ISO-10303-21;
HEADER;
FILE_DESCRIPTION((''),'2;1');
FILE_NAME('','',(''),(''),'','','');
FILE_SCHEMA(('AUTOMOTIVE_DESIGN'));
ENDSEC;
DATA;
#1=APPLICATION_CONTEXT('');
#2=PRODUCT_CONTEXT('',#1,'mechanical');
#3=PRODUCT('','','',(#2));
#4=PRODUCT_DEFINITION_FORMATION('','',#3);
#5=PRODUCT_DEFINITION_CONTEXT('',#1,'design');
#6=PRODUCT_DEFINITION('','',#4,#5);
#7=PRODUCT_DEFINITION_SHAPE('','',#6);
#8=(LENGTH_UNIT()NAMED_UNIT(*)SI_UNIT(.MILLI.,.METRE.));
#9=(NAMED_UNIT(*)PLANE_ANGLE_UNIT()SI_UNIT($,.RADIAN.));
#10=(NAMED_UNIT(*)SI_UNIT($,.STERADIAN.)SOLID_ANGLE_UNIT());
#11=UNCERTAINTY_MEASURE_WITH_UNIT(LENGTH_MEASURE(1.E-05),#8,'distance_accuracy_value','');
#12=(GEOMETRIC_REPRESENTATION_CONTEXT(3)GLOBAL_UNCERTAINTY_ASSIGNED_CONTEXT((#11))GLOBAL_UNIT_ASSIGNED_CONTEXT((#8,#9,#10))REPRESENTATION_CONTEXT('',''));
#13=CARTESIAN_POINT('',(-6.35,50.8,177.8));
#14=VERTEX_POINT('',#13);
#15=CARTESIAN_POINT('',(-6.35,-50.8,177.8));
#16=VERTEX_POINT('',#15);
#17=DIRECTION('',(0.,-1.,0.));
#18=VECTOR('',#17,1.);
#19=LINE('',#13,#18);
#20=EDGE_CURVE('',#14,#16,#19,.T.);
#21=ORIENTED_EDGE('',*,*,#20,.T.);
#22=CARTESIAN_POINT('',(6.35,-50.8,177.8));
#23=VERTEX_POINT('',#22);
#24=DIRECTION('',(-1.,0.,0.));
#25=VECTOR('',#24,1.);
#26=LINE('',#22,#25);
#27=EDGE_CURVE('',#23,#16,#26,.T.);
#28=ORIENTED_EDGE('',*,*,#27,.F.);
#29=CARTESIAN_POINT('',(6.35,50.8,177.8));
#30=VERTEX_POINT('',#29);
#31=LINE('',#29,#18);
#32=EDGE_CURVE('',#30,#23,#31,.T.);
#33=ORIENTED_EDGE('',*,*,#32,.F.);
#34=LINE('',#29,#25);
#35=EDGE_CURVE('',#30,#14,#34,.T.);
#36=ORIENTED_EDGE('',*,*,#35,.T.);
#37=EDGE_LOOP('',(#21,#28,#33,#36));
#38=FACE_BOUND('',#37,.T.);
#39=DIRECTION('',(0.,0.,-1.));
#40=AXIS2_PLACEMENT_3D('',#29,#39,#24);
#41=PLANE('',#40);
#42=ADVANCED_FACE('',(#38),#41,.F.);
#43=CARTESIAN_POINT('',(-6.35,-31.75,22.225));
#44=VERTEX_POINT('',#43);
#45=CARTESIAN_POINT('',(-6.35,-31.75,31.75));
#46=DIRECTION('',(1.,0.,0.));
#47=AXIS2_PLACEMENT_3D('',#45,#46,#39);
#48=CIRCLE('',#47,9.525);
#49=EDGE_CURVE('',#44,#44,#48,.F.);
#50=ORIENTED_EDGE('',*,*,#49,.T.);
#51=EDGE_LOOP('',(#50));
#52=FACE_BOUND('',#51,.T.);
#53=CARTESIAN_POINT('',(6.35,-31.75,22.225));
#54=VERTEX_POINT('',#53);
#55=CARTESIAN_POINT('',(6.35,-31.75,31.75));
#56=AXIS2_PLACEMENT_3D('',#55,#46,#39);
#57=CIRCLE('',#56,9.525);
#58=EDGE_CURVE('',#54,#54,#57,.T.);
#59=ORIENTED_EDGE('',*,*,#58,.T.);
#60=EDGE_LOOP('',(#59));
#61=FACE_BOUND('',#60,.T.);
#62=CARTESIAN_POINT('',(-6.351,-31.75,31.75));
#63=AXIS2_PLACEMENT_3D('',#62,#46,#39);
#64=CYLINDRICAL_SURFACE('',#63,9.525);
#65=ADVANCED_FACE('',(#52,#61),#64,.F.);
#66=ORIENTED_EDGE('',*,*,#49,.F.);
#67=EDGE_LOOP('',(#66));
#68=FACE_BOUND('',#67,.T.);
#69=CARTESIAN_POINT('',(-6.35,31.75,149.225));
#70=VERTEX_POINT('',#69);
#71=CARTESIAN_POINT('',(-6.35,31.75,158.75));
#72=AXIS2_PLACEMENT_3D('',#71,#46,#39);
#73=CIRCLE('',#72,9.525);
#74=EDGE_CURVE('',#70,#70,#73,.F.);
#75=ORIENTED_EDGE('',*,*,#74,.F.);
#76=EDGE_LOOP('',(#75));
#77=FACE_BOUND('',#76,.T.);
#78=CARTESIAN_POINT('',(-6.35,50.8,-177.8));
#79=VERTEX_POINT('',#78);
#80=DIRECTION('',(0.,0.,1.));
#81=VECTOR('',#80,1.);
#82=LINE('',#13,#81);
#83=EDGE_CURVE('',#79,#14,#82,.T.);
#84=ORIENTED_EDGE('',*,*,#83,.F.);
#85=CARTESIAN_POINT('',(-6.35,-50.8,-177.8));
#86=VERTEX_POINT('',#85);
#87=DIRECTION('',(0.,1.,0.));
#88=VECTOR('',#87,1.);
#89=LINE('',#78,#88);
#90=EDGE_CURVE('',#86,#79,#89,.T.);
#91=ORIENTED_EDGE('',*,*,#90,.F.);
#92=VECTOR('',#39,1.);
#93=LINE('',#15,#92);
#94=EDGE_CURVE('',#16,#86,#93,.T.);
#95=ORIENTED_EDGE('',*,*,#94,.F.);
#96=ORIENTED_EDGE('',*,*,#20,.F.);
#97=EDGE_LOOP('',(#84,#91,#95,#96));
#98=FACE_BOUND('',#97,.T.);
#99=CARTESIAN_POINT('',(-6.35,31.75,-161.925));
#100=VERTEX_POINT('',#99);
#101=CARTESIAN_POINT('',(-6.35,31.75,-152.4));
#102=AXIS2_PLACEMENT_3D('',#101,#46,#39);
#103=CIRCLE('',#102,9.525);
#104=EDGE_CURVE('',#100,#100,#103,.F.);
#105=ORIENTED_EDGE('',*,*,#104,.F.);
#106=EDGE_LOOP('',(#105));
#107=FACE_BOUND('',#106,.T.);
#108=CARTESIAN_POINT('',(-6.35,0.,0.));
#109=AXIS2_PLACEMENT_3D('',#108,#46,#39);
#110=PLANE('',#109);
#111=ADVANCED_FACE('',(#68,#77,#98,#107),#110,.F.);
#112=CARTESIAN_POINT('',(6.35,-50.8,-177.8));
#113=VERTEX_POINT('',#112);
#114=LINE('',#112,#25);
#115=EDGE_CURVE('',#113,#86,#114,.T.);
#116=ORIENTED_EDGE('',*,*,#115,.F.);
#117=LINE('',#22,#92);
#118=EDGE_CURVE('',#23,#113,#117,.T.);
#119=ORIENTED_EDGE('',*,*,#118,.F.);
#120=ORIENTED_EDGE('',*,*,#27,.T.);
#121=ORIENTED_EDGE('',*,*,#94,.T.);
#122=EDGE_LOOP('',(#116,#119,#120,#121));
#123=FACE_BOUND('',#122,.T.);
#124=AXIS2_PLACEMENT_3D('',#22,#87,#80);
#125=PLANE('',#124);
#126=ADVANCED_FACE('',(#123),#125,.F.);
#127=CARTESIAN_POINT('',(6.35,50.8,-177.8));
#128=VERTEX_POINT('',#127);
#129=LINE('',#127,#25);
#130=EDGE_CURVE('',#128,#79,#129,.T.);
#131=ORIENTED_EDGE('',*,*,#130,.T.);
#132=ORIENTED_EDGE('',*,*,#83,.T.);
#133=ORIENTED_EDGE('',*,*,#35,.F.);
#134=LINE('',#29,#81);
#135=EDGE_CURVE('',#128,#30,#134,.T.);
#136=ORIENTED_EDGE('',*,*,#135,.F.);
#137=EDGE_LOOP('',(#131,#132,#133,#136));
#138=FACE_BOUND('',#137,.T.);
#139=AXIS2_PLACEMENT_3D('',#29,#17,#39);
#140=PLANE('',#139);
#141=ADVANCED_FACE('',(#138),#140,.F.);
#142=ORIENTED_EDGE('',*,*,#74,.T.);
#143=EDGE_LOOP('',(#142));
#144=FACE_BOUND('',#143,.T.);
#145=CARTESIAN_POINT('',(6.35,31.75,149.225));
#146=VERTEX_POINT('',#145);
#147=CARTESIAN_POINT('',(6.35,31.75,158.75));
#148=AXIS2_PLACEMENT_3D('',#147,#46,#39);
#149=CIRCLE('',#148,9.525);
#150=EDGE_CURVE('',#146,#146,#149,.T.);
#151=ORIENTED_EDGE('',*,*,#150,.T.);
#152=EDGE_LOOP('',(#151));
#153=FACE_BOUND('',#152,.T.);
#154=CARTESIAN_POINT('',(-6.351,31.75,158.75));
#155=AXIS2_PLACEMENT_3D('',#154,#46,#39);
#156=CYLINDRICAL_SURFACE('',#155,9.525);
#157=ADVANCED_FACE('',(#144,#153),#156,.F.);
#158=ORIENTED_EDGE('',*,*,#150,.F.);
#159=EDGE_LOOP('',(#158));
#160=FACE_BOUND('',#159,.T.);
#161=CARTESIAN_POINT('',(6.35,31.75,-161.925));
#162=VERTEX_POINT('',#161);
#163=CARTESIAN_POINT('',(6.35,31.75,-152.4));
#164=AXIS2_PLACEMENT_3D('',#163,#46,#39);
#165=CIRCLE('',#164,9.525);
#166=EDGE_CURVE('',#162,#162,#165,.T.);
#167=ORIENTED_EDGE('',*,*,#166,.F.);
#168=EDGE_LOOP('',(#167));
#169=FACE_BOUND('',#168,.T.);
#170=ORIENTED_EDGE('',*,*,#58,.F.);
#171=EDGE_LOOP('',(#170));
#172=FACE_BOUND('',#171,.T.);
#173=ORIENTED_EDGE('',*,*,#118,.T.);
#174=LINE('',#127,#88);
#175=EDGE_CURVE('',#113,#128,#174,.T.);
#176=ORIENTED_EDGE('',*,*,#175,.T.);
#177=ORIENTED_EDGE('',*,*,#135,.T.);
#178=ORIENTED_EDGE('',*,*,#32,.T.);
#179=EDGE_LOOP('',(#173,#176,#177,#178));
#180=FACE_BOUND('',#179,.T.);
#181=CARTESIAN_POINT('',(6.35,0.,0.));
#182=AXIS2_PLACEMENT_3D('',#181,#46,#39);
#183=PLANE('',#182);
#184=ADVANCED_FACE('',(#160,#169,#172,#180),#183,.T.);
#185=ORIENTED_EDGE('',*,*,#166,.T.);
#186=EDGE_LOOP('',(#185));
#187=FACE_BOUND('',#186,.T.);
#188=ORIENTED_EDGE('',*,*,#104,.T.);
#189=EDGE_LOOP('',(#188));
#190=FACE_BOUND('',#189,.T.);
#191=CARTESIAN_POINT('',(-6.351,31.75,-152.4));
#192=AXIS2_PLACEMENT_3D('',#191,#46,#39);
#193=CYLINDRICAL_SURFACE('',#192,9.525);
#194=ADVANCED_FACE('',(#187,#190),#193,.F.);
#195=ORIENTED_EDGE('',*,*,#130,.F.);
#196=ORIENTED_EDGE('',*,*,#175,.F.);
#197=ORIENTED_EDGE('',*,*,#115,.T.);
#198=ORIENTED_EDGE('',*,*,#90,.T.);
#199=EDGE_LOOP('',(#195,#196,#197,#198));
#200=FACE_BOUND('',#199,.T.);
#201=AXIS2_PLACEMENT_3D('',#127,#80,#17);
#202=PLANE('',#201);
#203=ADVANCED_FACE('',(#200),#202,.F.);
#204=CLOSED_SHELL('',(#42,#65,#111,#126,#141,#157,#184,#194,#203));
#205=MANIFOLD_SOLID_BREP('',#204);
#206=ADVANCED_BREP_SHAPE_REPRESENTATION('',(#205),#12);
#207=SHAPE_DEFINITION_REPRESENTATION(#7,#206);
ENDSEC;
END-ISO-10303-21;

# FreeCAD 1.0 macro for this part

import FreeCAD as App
import Part
import Sketcher

V = App.Vector
Q = App.Units.Quantity


def add_polygon(sketch, points):
    """Adds a closed chain of lines whose ends are joined by coincident constraints."""
    first, n = sketch.GeometryCount, len(points)
    for a, b in zip(points, points[1:] + points[:1]):
        sketch.addGeometry(Part.LineSegment(App.Vector(*a, 0), App.Vector(*b, 0)), False)
    for i in range(n):
        sketch.addConstraint(Sketcher.Constraint("Coincident", first + i, 2, first + (i + 1) % n, 1))

doc = App.newDocument("Part")
body = doc.addObject("PartDesign::Body", "Body")

# Sketch on YZ plane
sketch1 = body.newObject("Sketcher::SketchObject", "Sketch")
sketch1.AttachmentSupport = (doc.getObject("YZ_Plane"), [""])
sketch1.MapMode = "FlatFace"
add_polygon(sketch1, [(50.8, 177.8), (-50.8, 177.8), (-50.8, -177.8), (50.8, -177.8)])  # lines 0-3
sketch1.addConstraint([
    Sketcher.Constraint("Horizontal", 0),
    Sketcher.Constraint("Vertical", 1),
    Sketcher.Constraint("Horizontal", 2),
    Sketcher.Constraint("Vertical", 3),
    Sketcher.Constraint("Symmetric", 0, 2, 2, 2, -1, 1),
    Sketcher.Constraint("DistanceX", 0, 2, 0, 1, Q("4 in")),
    Sketcher.Constraint("DistanceY", 1, 2, 1, 1, Q("14 in")),
])
pad1 = body.newObject("PartDesign::Pad", "Pad")
pad1.Profile = sketch1
pad1.Length = Q("0.5 in")
pad1.Midplane = True

# Sketch on YZ plane
sketch2 = body.newObject("Sketcher::SketchObject", "Sketch001")
sketch2.AttachmentSupport = (doc.getObject("YZ_Plane"), [""])
sketch2.MapMode = "FlatFace"
sketch2.AttachmentOffset = App.Placement(V(0, 0, 0.25 * 25.4), App.Rotation())
sketch2.addGeometry(Part.Circle(V(31.75, 158.75, 0), V(0, 0, 1), 9.525), False)
sketch2.addConstraint([
    Sketcher.Constraint("Diameter", 0, Q("0.75 in")),
    Sketcher.Constraint("DistanceX", -1, 1, 0, 3, Q("1.25 in")),
    Sketcher.Constraint("DistanceY", -1, 1, 0, 3, Q("6.25 in")),
])
pocket1 = body.newObject("PartDesign::Pocket", "Pocket")
pocket1.Profile = sketch2
pocket1.Type = "UpToFirst"

# Sketch on YZ plane
sketch3 = body.newObject("Sketcher::SketchObject", "Sketch002")
sketch3.AttachmentSupport = (doc.getObject("YZ_Plane"), [""])
sketch3.MapMode = "FlatFace"
sketch3.AttachmentOffset = App.Placement(V(0, 0, 0.25 * 25.4), App.Rotation())
sketch3.addGeometry(Part.Circle(V(-31.75, 31.75, 0), V(0, 0, 1), 9.525), False)
sketch3.addConstraint([
    Sketcher.Constraint("Diameter", 0, Q("0.75 in")),
    Sketcher.Constraint("DistanceX", 0, 3, -1, 1, Q("1.25 in")),
    Sketcher.Constraint("DistanceY", -1, 1, 0, 3, Q("1.25 in")),
])
pocket2 = body.newObject("PartDesign::Pocket", "Pocket001")
pocket2.Profile = sketch3
pocket2.Type = "UpToFirst"

# Sketch on YZ plane
sketch4 = body.newObject("Sketcher::SketchObject", "Sketch003")
sketch4.AttachmentSupport = (doc.getObject("YZ_Plane"), [""])
sketch4.MapMode = "FlatFace"
sketch4.AttachmentOffset = App.Placement(V(0, 0, 0.25 * 25.4), App.Rotation())
sketch4.addGeometry(Part.Circle(V(31.75, -152.4, 0), V(0, 0, 1), 9.525), False)
sketch4.addConstraint([
    Sketcher.Constraint("Diameter", 0, Q("0.75 in")),
    Sketcher.Constraint("DistanceY", 0, 3, -1, 1, Q("6 in")),
    Sketcher.Constraint("DistanceX", -1, 1, 0, 3, Q("1.25 in")),
])
pocket3 = body.newObject("PartDesign::Pocket", "Pocket002")
pocket3.Profile = sketch4
pocket3.Type = "UpToFirst"

doc.recompute()
